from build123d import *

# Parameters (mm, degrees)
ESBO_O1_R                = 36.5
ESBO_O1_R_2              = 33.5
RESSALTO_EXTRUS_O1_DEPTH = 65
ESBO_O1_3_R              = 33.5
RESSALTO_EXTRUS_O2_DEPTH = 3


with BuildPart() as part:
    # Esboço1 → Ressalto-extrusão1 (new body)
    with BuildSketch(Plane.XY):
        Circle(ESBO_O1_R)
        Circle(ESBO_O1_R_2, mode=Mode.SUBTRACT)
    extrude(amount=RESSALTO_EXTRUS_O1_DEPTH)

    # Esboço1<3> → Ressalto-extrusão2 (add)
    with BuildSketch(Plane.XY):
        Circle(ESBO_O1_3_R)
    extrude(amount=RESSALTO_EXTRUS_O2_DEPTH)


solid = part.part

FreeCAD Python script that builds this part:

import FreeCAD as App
import Part
import Sketcher
from FreeCAD import Vector
Q = App.Units.Quantity

doc = App.newDocument("Part")
body = doc.addObject("PartDesign::Body", "Body")

# Sketch on XY plane
sketch1 = body.newObject("Sketcher::SketchObject", "Sketch")
sketch1.AttachmentSupport = (doc.getObject("XY_Plane"), [""])
sketch1.MapMode = "FlatFace"
sketch1.addGeometry(Part.Circle(Vector(0, 0, 0), Vector(0, 0, 1), 36), False)
sketch1.addGeometry(Part.Circle(Vector(0, 0, 0), Vector(0, 0, 1), 34), False)
sketch1.addConstraint(Sketcher.Constraint("Coincident", 0, 3, -1, 1))
sketch1.addConstraint(Sketcher.Constraint("Coincident", 1, 3, -1, 1))
sketch1.addConstraint(Sketcher.Constraint("Diameter", 0, Q("73 mm")))
sketch1.addConstraint(Sketcher.Constraint("Diameter", 1, Q("67 mm")))
pad1 = body.newObject("PartDesign::Pad", "Pad")
pad1.Profile = sketch1
pad1.Length = 65

# Sketch on XY plane
sketch2 = body.newObject("Sketcher::SketchObject", "Sketch001")
sketch2.AttachmentSupport = (doc.getObject("XY_Plane"), [""])
sketch2.MapMode = "FlatFace"
sketch2.addGeometry(Part.Circle(Vector(0, 0, 0), Vector(0, 0, 1), 34), False)
sketch2.addConstraint(Sketcher.Constraint("Coincident", 0, 3, -1, 1))
sketch2.addConstraint(Sketcher.Constraint("Diameter", 0, Q("67 mm")))
pad2 = body.newObject("PartDesign::Pad", "Pad001")
pad2.Profile = sketch2
pad2.Length = 3

doc.recompute()
